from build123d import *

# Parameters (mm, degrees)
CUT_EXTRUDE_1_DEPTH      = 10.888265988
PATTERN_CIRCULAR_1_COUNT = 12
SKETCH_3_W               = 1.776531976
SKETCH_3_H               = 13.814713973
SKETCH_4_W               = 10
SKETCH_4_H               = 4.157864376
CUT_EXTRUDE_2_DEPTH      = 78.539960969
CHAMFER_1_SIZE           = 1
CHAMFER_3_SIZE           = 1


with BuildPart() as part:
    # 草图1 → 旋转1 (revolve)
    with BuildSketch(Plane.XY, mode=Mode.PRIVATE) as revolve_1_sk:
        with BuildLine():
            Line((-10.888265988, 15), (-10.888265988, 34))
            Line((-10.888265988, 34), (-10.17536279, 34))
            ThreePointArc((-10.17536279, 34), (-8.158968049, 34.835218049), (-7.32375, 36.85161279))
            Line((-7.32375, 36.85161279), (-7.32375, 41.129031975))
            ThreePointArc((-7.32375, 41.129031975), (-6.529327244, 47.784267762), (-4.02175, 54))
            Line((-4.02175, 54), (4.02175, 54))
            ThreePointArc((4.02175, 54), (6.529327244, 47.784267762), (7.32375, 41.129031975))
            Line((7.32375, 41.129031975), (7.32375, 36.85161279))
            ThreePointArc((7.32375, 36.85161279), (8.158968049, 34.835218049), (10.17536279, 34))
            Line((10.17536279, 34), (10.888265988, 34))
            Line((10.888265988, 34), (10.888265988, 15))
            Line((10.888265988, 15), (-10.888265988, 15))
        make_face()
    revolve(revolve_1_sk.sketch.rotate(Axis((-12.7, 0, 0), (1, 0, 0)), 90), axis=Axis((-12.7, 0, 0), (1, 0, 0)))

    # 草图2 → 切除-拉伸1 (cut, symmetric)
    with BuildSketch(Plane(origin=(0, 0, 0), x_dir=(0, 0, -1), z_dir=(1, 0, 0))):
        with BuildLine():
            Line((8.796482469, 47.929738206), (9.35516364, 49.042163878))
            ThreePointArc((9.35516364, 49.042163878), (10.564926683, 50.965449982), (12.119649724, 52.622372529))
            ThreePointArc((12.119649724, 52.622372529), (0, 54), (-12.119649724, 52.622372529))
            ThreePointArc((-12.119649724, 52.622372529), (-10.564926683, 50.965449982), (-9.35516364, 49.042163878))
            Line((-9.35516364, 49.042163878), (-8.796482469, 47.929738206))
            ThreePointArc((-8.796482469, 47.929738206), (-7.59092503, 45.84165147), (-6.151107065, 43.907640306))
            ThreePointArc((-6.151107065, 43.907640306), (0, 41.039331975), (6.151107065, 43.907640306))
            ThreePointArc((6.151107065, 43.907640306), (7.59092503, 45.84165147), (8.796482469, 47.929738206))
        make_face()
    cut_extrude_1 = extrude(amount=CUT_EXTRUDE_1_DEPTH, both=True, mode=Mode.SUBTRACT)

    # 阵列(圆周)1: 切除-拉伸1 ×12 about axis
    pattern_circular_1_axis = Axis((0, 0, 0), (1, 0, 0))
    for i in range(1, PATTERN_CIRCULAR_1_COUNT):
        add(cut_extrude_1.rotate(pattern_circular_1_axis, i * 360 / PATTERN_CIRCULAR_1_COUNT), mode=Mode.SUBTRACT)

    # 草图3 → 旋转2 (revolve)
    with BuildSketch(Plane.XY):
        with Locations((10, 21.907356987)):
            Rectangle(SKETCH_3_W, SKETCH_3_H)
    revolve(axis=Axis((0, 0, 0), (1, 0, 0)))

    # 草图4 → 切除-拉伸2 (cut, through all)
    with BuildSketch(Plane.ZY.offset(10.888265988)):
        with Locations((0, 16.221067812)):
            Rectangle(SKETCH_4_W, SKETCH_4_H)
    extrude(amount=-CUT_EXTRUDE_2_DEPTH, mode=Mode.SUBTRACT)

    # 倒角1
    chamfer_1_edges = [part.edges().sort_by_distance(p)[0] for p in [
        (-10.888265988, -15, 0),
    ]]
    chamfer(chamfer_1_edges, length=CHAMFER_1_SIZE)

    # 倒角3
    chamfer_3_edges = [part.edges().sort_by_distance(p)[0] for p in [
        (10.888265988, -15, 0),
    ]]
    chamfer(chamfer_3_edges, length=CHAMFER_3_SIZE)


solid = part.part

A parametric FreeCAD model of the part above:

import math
import FreeCAD as App
import Part
import Sketcher
from FreeCAD import Vector
Q = App.Units.Quantity


def edges_at(feature, points):
    """Names of the edges that pass closest to the given points."""
    edges = feature.Shape.Edges
    near = lambda p: min(range(len(edges)), key=lambda i: edges[i].distToShape(Part.Vertex(*p))[0])
    return sorted({f"Edge{near(p) + 1}" for p in points})

doc = App.newDocument("Part")
body = doc.addObject("PartDesign::Body", "Body")

# Sketch on XY plane
sketch1 = doc.addObject("Sketcher::SketchObject", "Sketch")
body.addObject(sketch1)
sketch1.AttachmentSupport = (doc.XY_Plane, [""])
sketch1.MapMode = "FlatFace"
sketch1.addGeometry([
    Part.LineSegment(Vector(-10.888266, 34, 0), Vector(-10.888266, 15, 0)),  # 0
    Part.LineSegment(Vector(-10.888266, 15, 0), Vector(10.888266, 15, 0)),  # 1
    Part.LineSegment(Vector(10.888266, 15, 0), Vector(10.888266, 34, 0)),  # 2
    Part.LineSegment(Vector(10.888266, 34, 0), Vector(10.175363, 34, 0)),  # 3
    Part.ArcOfCircle(Part.Circle(Vector(10.175363, 36.851613, 0), Vector(0, 0, 1), 2.851613), math.radians(180), math.radians(270)),  # 4
    Part.LineSegment(Vector(7.32375, 36.851613, 0), Vector(7.32375, 41.129032, 0)),  # 5
    Part.ArcOfCircle(Part.Circle(Vector(-18.073929, 41.472392, 0), Vector(0, 0, 1), 25.4), math.radians(-0.774554), math.radians(29.551977)),  # 6
    Part.LineSegment(Vector(4.02175, 54, 0), Vector(-4.02175, 54, 0)),  # 7
    Part.ArcOfCircle(Part.Circle(Vector(18.073929, 41.472392, 0), Vector(0, 0, 1), 25.4), math.radians(150.448023), math.radians(180.774554)),  # 8
    Part.LineSegment(Vector(-7.32375, 41.129032, 0), Vector(-7.32375, 36.851613, 0)),  # 9
    Part.ArcOfCircle(Part.Circle(Vector(-10.175363, 36.851613, 0), Vector(0, 0, 1), 2.851613), math.radians(-90), math.radians(0)),  # 10
    Part.LineSegment(Vector(-10.175363, 34, 0), Vector(-10.888266, 34, 0)),  # 11
], False)
sketch1.addConstraint([
    Sketcher.Constraint("Coincident", 0, 2, 1, 1),
    Sketcher.Constraint("Coincident", 1, 2, 2, 1),
    Sketcher.Constraint("Coincident", 2, 2, 3, 1),
    Sketcher.Constraint("Tangent", 3, 2, 4, 2),
    Sketcher.Constraint("Tangent", 4, 1, 5, 1),
    Sketcher.Constraint("Coincident", 5, 2, 6, 1),
    Sketcher.Constraint("Coincident", 6, 2, 7, 1),
    Sketcher.Constraint("Coincident", 7, 2, 8, 1),
    Sketcher.Constraint("Coincident", 8, 2, 9, 1),
    Sketcher.Constraint("Tangent", 9, 2, 10, 2),
    Sketcher.Constraint("Tangent", 10, 1, 11, 1),
    Sketcher.Constraint("Coincident", 11, 2, 0, 1),
    Sketcher.Constraint("Vertical", 0),
    Sketcher.Constraint("Horizontal", 1),
    Sketcher.Constraint("Vertical", 2),
    Sketcher.Constraint("Horizontal", 3),
    Sketcher.Constraint("Vertical", 5),
    Sketcher.Constraint("Horizontal", 7),
    Sketcher.Constraint("Vertical", 9),
    Sketcher.Constraint("Horizontal", 11),
    Sketcher.Constraint("Equal", 6, 8),
    Sketcher.Constraint("Equal", 4, 10),
    Sketcher.Constraint("Symmetric", 6, 3, 8, 3, -2),
    Sketcher.Constraint("Symmetric", 4, 3, 10, 3, -2),
    Sketcher.Constraint("Equal", 3, 11),
    Sketcher.Constraint("Radius", 6, Q("25.4 mm")),
    Sketcher.Constraint("DistanceY", 0, 2, 0, 1, Q("19 mm")),
    Sketcher.Constraint("DistanceY", -1, 1, 0, 2, Q("15 mm")),
    Sketcher.Constraint("DistanceY", -1, 1, 6, 2, Q("54 mm")),
    Sketcher.Constraint("DistanceX", 7, 2, 7, 1, Q("8.0435 mm")),
    Sketcher.Constraint("Radius", 4, Q("2.851613 mm")),
    Sketcher.Constraint("DistanceX", 6, 2, 5, 2, Q("3.302 mm")),
    Sketcher.Constraint("DistanceX", 1, 1, 1, 2, Q("21.776532 mm")),
    Sketcher.Constraint("DistanceY", 5, 1, 5, 2, Q("4.277419 mm")),
])
revolution = doc.addObject("PartDesign::Revolution", "Revolution")
body.addObject(revolution)
revolution.Profile = sketch1
revolution.ReferenceAxis = (sketch1, ["H_Axis"])
revolution.Angle = 360

# Sketch on YZ plane
sketch2 = doc.addObject("Sketcher::SketchObject", "Sketch001")
body.addObject(sketch2)
sketch2.AttachmentSupport = (doc.YZ_Plane, [""])
sketch2.MapMode = "FlatFace"
sketch2.addGeometry([
    Part.LineSegment(Vector(47.929738, -8.796482, 0), Vector(49.042164, -9.355164, 0)),  # 0
    Part.ArcOfCircle(Part.Circle(Vector(43.725972, -19.940573, 0), Vector(0, 0, 1), 11.84537), math.radians(41.319055), math.radians(63.333333)),  # 1
    Part.ArcOfCircle(Part.Circle(Vector(0, 0, 0), Vector(0, 0, 1), 54), math.radians(-12.96983), math.radians(12.96983)),  # 2
    Part.ArcOfCircle(Part.Circle(Vector(43.725972, 19.940573, 0), Vector(0, 0, 1), 11.84537), math.radians(-63.333333), math.radians(-41.319055)),  # 3
    Part.LineSegment(Vector(49.042164, 9.355164, 0), Vector(47.929738, 8.796482, 0)),  # 4
    Part.ArcOfCircle(Part.Circle(Vector(57.235006, -9.731829, 0), Vector(0, 0, 1), 20.7337), math.radians(116.666667), math.radians(130)),  # 5
    Part.ArcOfCircle(Part.Circle(Vector(49.069032, 0, 0), Vector(0, 0, 1), 8.0297), math.radians(130), math.radians(230)),  # 6
    Part.ArcOfCircle(Part.Circle(Vector(57.235006, 9.731829, 0), Vector(0, 0, 1), 20.7337), math.radians(-130), math.radians(-116.666667)),  # 7
], False)
sketch2.addConstraint([
    Sketcher.Constraint("Coincident", 0, 2, 1, 2),
    Sketcher.Constraint("Coincident", 1, 1, 2, 1),
    Sketcher.Constraint("Coincident", 2, 2, 3, 2),
    Sketcher.Constraint("Coincident", 3, 1, 4, 1),
    Sketcher.Constraint("Coincident", 4, 2, 5, 1),
    Sketcher.Constraint("Coincident", 5, 2, 6, 1),
    Sketcher.Constraint("Coincident", 6, 2, 7, 1),
    Sketcher.Constraint("Coincident", 7, 2, 0, 1),
    Sketcher.Constraint("Coincident", 2, 3, -1, 1),
    Sketcher.Constraint("PointOnObject", 6, 3, -1),
    Sketcher.Constraint("Radius", 2, Q("54 mm")),
    Sketcher.Constraint("Radius", 5, Q("20.7337 mm")),
    Sketcher.Constraint("Radius", 6, Q("8.0297 mm")),
    Sketcher.Constraint("Radius", 7, Q("20.7337 mm")),
    Sketcher.Constraint("Radius", 1, Q("11.84537 mm")),
    Sketcher.Constraint("Radius", 3, Q("11.84537 mm")),
    Sketcher.Constraint("DistanceY", 5, 3, 3, 3, Q("29.672401 mm")),
    Sketcher.Constraint("DistanceY", 1, 3, 7, 3, Q("29.672401 mm")),
    Sketcher.Constraint("DistanceX", 1, 3, 1, 1, Q("8.896401 mm")),
    Sketcher.Constraint("DistanceX", 3, 3, 2, 2, Q("8.896401 mm")),
    Sketcher.Constraint("DistanceX", -1, 1, 1, 3, Q("43.725972 mm")),
    Sketcher.Constraint("DistanceX", -1, 1, 3, 3, Q("43.725972 mm")),
    Sketcher.Constraint("DistanceX", -1, 1, 6, 3, Q("49.069032 mm")),
    Sketcher.Constraint("DistanceX", -1, 1, 4, 2, Q("47.929738 mm")),
    Sketcher.Constraint("DistanceX", -1, 1, 5, 2, Q("43.90764 mm")),
    Sketcher.Constraint("DistanceX", -1, 1, 6, 2, Q("43.90764 mm")),
    Sketcher.Constraint("DistanceX", -1, 1, 7, 2, Q("47.929738 mm")),
    Sketcher.Constraint("DistanceX", 0, 2, 5, 3, Q("8.192842 mm")),
    Sketcher.Constraint("DistanceX", 3, 1, 2, 2, Q("3.580209 mm")),
])
pocket1 = doc.addObject("PartDesign::Pocket", "Pocket")
body.addObject(pocket1)
pocket1.Profile = sketch2
pocket1.Length = 21.776532
pocket1.Midplane = True
doc.recompute()

polarpattern = doc.addObject("PartDesign::PolarPattern", "PolarPattern")
body.addObject(polarpattern)
polarpattern.Originals = [pocket1]
polarpattern.Axis = (doc.X_Axis, [""])
polarpattern.Angle = 360
polarpattern.Occurrences = 12
body.Tip = polarpattern

# Sketch on XY plane
sketch3 = doc.addObject("Sketcher::SketchObject", "Sketch002")
body.addObject(sketch3)
sketch3.AttachmentSupport = (doc.XY_Plane, [""])
sketch3.MapMode = "FlatFace"
sketch3.addGeometry([
    Part.LineSegment(Vector(9.111734, 28.814714, 0), Vector(9.111734, 15, 0)),
    Part.LineSegment(Vector(9.111734, 15, 0), Vector(10.888266, 15, 0)),
    Part.LineSegment(Vector(10.888266, 15, 0), Vector(10.888266, 28.814714, 0)),
    Part.LineSegment(Vector(10.888266, 28.814714, 0), Vector(9.111734, 28.814714, 0)),
], False)
sketch3.addConstraint([
    Sketcher.Constraint("Coincident", 0, 2, 1, 1),
    Sketcher.Constraint("Coincident", 1, 2, 2, 1),
    Sketcher.Constraint("Coincident", 2, 2, 3, 1),
    Sketcher.Constraint("Coincident", 3, 2, 0, 1),
    Sketcher.Constraint("Vertical", 0),
    Sketcher.Constraint("Horizontal", 1),
    Sketcher.Constraint("Vertical", 2),
    Sketcher.Constraint("Horizontal", 3),
    Sketcher.Constraint("DistanceY", -1, 1, 0, 2, Q("15 mm")),
    Sketcher.Constraint("DistanceX", 1, 1, 1, 2, Q("1.776532 mm")),
    Sketcher.Constraint("DistanceY", 0, 2, 0, 1, Q("13.814714 mm")),
    Sketcher.Constraint("DistanceX", -1, 1, 0, 2, Q("9.111734 mm")),
])
revolution2 = doc.addObject("PartDesign::Revolution", "Revolution001")
body.addObject(revolution2)
revolution2.Profile = sketch3
revolution2.ReferenceAxis = (sketch3, ["H_Axis"])
revolution2.Angle = 360

# Sketch on YZ plane
sketch4 = doc.addObject("Sketcher::SketchObject", "Sketch003")
body.addObject(sketch4)
sketch4.AttachmentSupport = (doc.YZ_Plane, [""])
sketch4.MapMode = "FlatFace"
sketch4.AttachmentOffset = App.Placement(Vector(0, 0, -10.888266), App.Rotation())
sketch4.addGeometry([
    Part.LineSegment(Vector(18.3, -5, 0), Vector(14.142136, -5, 0)),
    Part.LineSegment(Vector(14.142136, -5, 0), Vector(14.142136, 5, 0)),
    Part.LineSegment(Vector(14.142136, 5, 0), Vector(18.3, 5, 0)),
    Part.LineSegment(Vector(18.3, 5, 0), Vector(18.3, -5, 0)),
], False)
sketch4.addConstraint([
    Sketcher.Constraint("Coincident", 0, 2, 1, 1),
    Sketcher.Constraint("Coincident", 1, 2, 2, 1),
    Sketcher.Constraint("Coincident", 2, 2, 3, 1),
    Sketcher.Constraint("Coincident", 3, 2, 0, 1),
    Sketcher.Constraint("Horizontal", 0),
    Sketcher.Constraint("Vertical", 1),
    Sketcher.Constraint("Horizontal", 2),
    Sketcher.Constraint("Vertical", 3),
    Sketcher.Constraint("DistanceY", 1, 1, 1, 2, Q("10 mm")),
    Sketcher.Constraint("DistanceY", 0, 2, -1, 1, Q("5 mm")),
    Sketcher.Constraint("DistanceX", -1, 1, 2, 2, Q("18.3 mm")),
    Sketcher.Constraint("DistanceX", 0, 2, 0, 1, Q("4.157864 mm")),
])
pocket2 = doc.addObject("PartDesign::Pocket", "Pocket001")
body.addObject(pocket2)
pocket2.Profile = sketch4
pocket2.Type = "ThroughAll"
pocket2.Reversed = True
doc.recompute()

chamfer = doc.addObject("PartDesign::Chamfer", "Chamfer")
body.addObject(chamfer)
chamfer.Base = (pocket2, edges_at(pocket2, [(-10.888, -15, 0)]))
chamfer.Size = 1
doc.recompute()

chamfer2 = doc.addObject("PartDesign::Chamfer", "Chamfer001")
body.addObject(chamfer2)
chamfer2.Base = (chamfer, edges_at(chamfer, [(10.888, -15, 0)]))
chamfer2.Size = 1

doc.recompute()
